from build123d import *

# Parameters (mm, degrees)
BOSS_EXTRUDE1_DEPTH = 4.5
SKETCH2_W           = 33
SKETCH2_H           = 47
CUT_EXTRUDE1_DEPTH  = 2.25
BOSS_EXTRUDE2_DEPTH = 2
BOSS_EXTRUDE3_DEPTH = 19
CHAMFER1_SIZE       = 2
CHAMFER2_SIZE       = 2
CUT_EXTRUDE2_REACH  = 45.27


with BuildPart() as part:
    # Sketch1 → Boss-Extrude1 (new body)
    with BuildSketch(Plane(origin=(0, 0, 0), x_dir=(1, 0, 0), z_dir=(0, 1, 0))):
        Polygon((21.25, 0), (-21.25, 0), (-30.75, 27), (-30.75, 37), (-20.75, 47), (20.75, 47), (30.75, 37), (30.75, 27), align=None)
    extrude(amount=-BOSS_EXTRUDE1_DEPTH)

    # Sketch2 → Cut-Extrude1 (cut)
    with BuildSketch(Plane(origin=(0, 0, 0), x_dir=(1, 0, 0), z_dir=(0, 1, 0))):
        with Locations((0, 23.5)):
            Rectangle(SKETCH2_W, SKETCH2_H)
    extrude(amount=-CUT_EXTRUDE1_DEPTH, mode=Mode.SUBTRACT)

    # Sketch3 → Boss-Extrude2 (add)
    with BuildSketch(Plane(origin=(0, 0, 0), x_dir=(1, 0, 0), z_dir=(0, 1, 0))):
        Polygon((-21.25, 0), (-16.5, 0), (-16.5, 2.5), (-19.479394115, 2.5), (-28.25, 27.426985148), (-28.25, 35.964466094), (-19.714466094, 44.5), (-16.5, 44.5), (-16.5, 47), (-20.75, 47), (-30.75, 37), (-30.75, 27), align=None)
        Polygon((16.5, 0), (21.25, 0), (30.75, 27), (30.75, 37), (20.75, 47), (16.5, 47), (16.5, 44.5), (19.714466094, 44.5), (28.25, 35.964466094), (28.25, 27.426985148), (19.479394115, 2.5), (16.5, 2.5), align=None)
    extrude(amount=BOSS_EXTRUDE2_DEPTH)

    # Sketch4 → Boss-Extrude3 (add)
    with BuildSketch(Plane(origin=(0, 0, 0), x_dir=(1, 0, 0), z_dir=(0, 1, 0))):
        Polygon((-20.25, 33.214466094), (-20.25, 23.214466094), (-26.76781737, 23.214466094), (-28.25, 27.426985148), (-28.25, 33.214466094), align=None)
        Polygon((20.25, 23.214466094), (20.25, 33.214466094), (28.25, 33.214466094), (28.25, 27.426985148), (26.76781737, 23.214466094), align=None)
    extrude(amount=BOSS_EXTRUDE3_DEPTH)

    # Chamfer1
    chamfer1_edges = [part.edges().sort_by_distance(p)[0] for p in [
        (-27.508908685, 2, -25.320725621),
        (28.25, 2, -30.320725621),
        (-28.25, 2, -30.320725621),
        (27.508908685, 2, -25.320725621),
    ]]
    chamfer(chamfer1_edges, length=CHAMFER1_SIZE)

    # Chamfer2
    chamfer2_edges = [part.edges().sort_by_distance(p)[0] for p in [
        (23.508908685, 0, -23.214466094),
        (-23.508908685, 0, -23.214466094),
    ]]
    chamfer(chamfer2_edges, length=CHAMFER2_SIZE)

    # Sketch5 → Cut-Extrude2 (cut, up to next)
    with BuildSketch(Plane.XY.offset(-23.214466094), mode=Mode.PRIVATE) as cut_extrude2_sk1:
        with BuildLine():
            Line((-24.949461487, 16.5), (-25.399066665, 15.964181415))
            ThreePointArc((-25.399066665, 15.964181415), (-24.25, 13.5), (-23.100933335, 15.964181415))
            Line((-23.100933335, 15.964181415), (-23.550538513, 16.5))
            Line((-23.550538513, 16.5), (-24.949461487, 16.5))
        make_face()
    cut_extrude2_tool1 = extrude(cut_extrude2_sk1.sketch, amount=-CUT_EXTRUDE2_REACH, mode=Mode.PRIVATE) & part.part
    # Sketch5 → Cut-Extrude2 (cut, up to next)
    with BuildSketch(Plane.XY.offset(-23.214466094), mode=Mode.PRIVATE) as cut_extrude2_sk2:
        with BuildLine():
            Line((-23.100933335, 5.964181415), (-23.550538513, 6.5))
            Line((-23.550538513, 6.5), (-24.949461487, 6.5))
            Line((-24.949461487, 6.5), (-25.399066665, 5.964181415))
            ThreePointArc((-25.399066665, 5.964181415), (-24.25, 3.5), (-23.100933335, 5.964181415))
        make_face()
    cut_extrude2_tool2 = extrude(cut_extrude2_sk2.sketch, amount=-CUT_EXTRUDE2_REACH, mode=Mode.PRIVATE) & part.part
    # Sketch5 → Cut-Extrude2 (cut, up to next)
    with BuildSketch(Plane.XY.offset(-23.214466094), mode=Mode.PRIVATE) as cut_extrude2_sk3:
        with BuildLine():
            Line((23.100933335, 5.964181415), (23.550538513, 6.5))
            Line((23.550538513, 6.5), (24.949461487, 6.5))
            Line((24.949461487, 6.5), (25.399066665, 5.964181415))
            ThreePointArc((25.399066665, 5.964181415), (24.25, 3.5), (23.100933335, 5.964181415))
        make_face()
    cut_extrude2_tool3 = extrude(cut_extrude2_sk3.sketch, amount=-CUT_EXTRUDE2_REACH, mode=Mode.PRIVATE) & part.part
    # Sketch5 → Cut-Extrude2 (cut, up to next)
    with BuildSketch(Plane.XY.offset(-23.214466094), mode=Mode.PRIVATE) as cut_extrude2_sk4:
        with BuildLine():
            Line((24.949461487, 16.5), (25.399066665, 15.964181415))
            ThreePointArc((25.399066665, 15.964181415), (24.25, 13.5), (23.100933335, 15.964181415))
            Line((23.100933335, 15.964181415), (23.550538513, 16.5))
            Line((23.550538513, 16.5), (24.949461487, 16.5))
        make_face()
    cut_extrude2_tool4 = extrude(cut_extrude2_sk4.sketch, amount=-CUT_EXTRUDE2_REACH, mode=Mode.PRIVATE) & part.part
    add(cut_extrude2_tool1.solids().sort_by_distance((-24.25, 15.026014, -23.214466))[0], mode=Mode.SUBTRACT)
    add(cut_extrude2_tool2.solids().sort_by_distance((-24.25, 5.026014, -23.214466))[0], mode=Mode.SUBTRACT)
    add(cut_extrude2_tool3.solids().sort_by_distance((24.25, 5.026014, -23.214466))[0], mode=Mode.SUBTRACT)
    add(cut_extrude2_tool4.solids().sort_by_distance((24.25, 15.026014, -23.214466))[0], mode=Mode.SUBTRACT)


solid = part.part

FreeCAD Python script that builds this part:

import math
import FreeCAD as App
import Part
import Sketcher

V = App.Vector
Q = App.Units.Quantity


def edges_at(feature, points):
    """Names of the edges that pass closest to the given points."""
    edges = feature.Shape.Edges
    near = lambda p: min(range(len(edges)), key=lambda i: edges[i].distToShape(Part.Vertex(*p))[0])
    return sorted({f"Edge{near(p) + 1}" for p in points})

doc = App.newDocument("Part")
body = doc.addObject("PartDesign::Body", "Body")

sketch1 = body.newObject("Sketcher::SketchObject", "Sketch")
sketch1.AttachmentSupport = (doc.getObject("XZ_Plane"), [""])
sketch1.MapMode = "FlatFace"
sketch1.addGeometry([
    Part.LineSegment(V(-21, 0, 0), V(21, 0, 0)),
    Part.LineSegment(V(21, 0, 0), V(31, -27, 0)),
    Part.LineSegment(V(31, -27, 0), V(31, -37, 0)),
    Part.LineSegment(V(31, -37, 0), V(21, -47, 0)),
    Part.LineSegment(V(21, -47, 0), V(-21, -47, 0)),
    Part.LineSegment(V(-21, -47, 0), V(-31, -37, 0)),
    Part.LineSegment(V(-31, -37, 0), V(-31, -27, 0)),
    Part.LineSegment(V(-31, -27, 0), V(-21, 0, 0)),
], False)
sketch1.addConstraint([
    Sketcher.Constraint("Coincident", 0, 2, 1, 1),
    Sketcher.Constraint("Coincident", 1, 2, 2, 1),
    Sketcher.Constraint("Coincident", 2, 2, 3, 1),
    Sketcher.Constraint("Coincident", 3, 2, 4, 1),
    Sketcher.Constraint("Coincident", 4, 2, 5, 1),
    Sketcher.Constraint("Coincident", 5, 2, 6, 1),
    Sketcher.Constraint("Coincident", 6, 2, 7, 1),
    Sketcher.Constraint("Coincident", 7, 2, 0, 1),
    Sketcher.Constraint("Horizontal", 0),
    Sketcher.Constraint("Vertical", 2),
    Sketcher.Constraint("Horizontal", 4),
    Sketcher.Constraint("Vertical", 6),
    Sketcher.Constraint("Symmetric", 0, 2, 7, 2, -1, 1),
    Sketcher.Constraint("Symmetric", 2, 2, 5, 2, -2),
    Sketcher.Constraint("Perpendicular", 3, 5),
    Sketcher.Constraint("Horizontal", 1, 2, 6, 2),
    Sketcher.Constraint("Equal", 3, 5),
    Sketcher.Constraint("DistanceY", 2, 2, 2, 1, 10.0),
    Sketcher.Constraint("DistanceX", 0, 1, 0, 2, 42.5),
    Sketcher.Constraint("DistanceX", 4, 2, 4, 1, 41.5),
    Sketcher.Constraint("DistanceY", 1, 2, -1, 1, 27.0),
    Sketcher.Constraint("DistanceY", 3, 2, -1, 1, 47.0),
])
pad1 = body.newObject("PartDesign::Pad", "Pad")
pad1.Profile = sketch1
pad1.Length = 4.5

sketch2 = body.newObject("Sketcher::SketchObject", "Sketch001")
sketch2.AttachmentSupport = (doc.getObject("XZ_Plane"), [""])
sketch2.MapMode = "FlatFace"
sketch2.addGeometry([
    Part.LineSegment(V(-16, -47, 0), V(-16, 0, 0)),
    Part.LineSegment(V(-16, 0, 0), V(16, 0, 0)),
    Part.LineSegment(V(16, 0, 0), V(16, -47, 0)),
    Part.LineSegment(V(16, -47, 0), V(-16, -47, 0)),
], False)
sketch2.addConstraint([
    Sketcher.Constraint("Coincident", 0, 2, 1, 1),
    Sketcher.Constraint("Coincident", 1, 2, 2, 1),
    Sketcher.Constraint("Coincident", 2, 2, 3, 1),
    Sketcher.Constraint("Coincident", 3, 2, 0, 1),
    Sketcher.Constraint("Vertical", 0),
    Sketcher.Constraint("Horizontal", 1),
    Sketcher.Constraint("Vertical", 2),
    Sketcher.Constraint("Horizontal", 3),
    Sketcher.Constraint("Symmetric", 0, 2, 1, 2, -1, 1),
    Sketcher.Constraint("DistanceX", 1, 1, 1, 2, 33.0),
    Sketcher.Constraint("DistanceY", 0, 1, 0, 2, 47.0),
])
pocket1 = body.newObject("PartDesign::Pocket", "Pocket")
pocket1.Profile = sketch2
pocket1.Length = 2.25
pocket1.Reversed = True

sketch3 = body.newObject("Sketcher::SketchObject", "Sketch002")
sketch3.AttachmentSupport = (doc.getObject("XZ_Plane"), [""])
sketch3.MapMode = "FlatFace"
sketch3.addGeometry([
    Part.LineSegment(V(-21.2, 0, 0), V(-16.5, 0, 0)),
    Part.LineSegment(V(-16.5, 0, 0), V(-16.5, -2.5, 0)),
    Part.LineSegment(V(-16.5, -2.5, 0), V(-19.5, -2.5, 0)),
    Part.LineSegment(V(-19.5, -2.5, 0), V(-28.2, -27.4, 0)),
    Part.LineSegment(V(-28.2, -27.4, 0), V(-28.2, -36, 0)),
    Part.LineSegment(V(-28.2, -36, 0), V(-19.7, -44.5, 0)),
    Part.LineSegment(V(-19.7, -44.5, 0), V(-16.5, -44.5, 0)),
    Part.LineSegment(V(-16.5, -44.5, 0), V(-16.5, -47, 0)),
    Part.LineSegment(V(-16.5, -47, 0), V(-20.8, -47, 0)),
    Part.LineSegment(V(-20.8, -47, 0), V(-30.8, -37, 0)),
    Part.LineSegment(V(-30.8, -37, 0), V(-30.8, -27, 0)),
    Part.LineSegment(V(-30.8, -27, 0), V(-21.2, 0, 0)),
    Part.LineSegment(V(16.5, 0, 0), V(21.2, 0, 0)),
    Part.LineSegment(V(21.2, 0, 0), V(30.8, -27, 0)),
    Part.LineSegment(V(30.8, -27, 0), V(30.8, -37, 0)),
    Part.LineSegment(V(30.8, -37, 0), V(20.8, -47, 0)),
    Part.LineSegment(V(20.8, -47, 0), V(16.5, -47, 0)),
    Part.LineSegment(V(16.5, -47, 0), V(16.5, -44.5, 0)),
    Part.LineSegment(V(16.5, -44.5, 0), V(19.7, -44.5, 0)),
    Part.LineSegment(V(19.7, -44.5, 0), V(28.2, -36, 0)),
    Part.LineSegment(V(28.2, -36, 0), V(28.2, -27.4, 0)),
    Part.LineSegment(V(28.2, -27.4, 0), V(19.5, -2.5, 0)),
    Part.LineSegment(V(19.5, -2.5, 0), V(16.5, -2.5, 0)),
    Part.LineSegment(V(16.5, -2.5, 0), V(16.5, 0, 0)),
], False)
sketch3.addConstraint([
    Sketcher.Constraint("Coincident", 0, 2, 1, 1),
    Sketcher.Constraint("Coincident", 1, 2, 2, 1),
    Sketcher.Constraint("Coincident", 2, 2, 3, 1),
    Sketcher.Constraint("Coincident", 3, 2, 4, 1),
    Sketcher.Constraint("Coincident", 4, 2, 5, 1),
    Sketcher.Constraint("Coincident", 5, 2, 6, 1),
    Sketcher.Constraint("Coincident", 6, 2, 7, 1),
    Sketcher.Constraint("Coincident", 7, 2, 8, 1),
    Sketcher.Constraint("Coincident", 8, 2, 9, 1),
    Sketcher.Constraint("Coincident", 9, 2, 10, 1),
    Sketcher.Constraint("Coincident", 10, 2, 11, 1),
    Sketcher.Constraint("Coincident", 11, 2, 0, 1),
    Sketcher.Constraint("Coincident", 12, 2, 13, 1),
    Sketcher.Constraint("Coincident", 13, 2, 14, 1),
    Sketcher.Constraint("Coincident", 14, 2, 15, 1),
    Sketcher.Constraint("Coincident", 15, 2, 16, 1),
    Sketcher.Constraint("Coincident", 16, 2, 17, 1),
    Sketcher.Constraint("Coincident", 17, 2, 18, 1),
    Sketcher.Constraint("Coincident", 18, 2, 19, 1),
    Sketcher.Constraint("Coincident", 19, 2, 20, 1),
    Sketcher.Constraint("Coincident", 20, 2, 21, 1),
    Sketcher.Constraint("Coincident", 21, 2, 22, 1),
    Sketcher.Constraint("Coincident", 22, 2, 23, 1),
    Sketcher.Constraint("Coincident", 23, 2, 12, 1),
    Sketcher.Constraint("Horizontal", 0),
    Sketcher.Constraint("Vertical", 1),
    Sketcher.Constraint("Horizontal", 2),
    Sketcher.Constraint("Vertical", 4),
    Sketcher.Constraint("Horizontal", 6),
    Sketcher.Constraint("Vertical", 7),
    Sketcher.Constraint("Horizontal", 8),
    Sketcher.Constraint("Vertical", 10),
    Sketcher.Constraint("Horizontal", 12),
    Sketcher.Constraint("Vertical", 14),
    Sketcher.Constraint("Horizontal", 16),
    Sketcher.Constraint("Vertical", 17),
    Sketcher.Constraint("Horizontal", 18),
    Sketcher.Constraint("Vertical", 20),
    Sketcher.Constraint("Horizontal", 22),
    Sketcher.Constraint("Vertical", 23),
    Sketcher.Constraint("Symmetric", 11, 2, 12, 2, -1, 1),
    Sketcher.Constraint("Symmetric", 10, 2, 13, 2, -2),
    Sketcher.Constraint("Symmetric", 8, 2, 15, 2, -2),
    Sketcher.Constraint("Symmetric", 6, 2, 17, 2, -2),
    Sketcher.Constraint("Symmetric", 4, 2, 19, 2, -2),
    Sketcher.Constraint("Symmetric", 2, 2, 21, 2, -2),
    Sketcher.Constraint("Symmetric", 0, 2, 23, 2, -2),
    Sketcher.Constraint("Parallel", 5, 9),
    Sketcher.Constraint("Parallel", 3, 11),
    Sketcher.Constraint("Perpendicular", 9, 15),
    Sketcher.Constraint("Parallel", 15, 19),
    Sketcher.Constraint("Parallel", 13, 21),
    Sketcher.Constraint("Horizontal", 9, 2, 14, 2),
    Sketcher.Constraint("Vertical", 1, 2, 6, 2),
    Sketcher.Constraint("Equal", 1, 7),
    Sketcher.Constraint("DistanceY", 10, 1, 10, 2, 10.0),
    Sketcher.Constraint("DistanceY", 1, 2, 1, 1, 2.5),
    Sketcher.Constraint("DistanceY", 7, 2, -1, 1, 47.0),
    Sketcher.Constraint("DistanceY", 9, 2, -1, 1, 37.0),
    Sketcher.Constraint("DistanceX", 3, 2, 11, 2, 7.0),
    Sketcher.Constraint("DistanceX", 7, 2, 16, 2, 33.0),
    Sketcher.Constraint("DistanceX", 0, 1, 0, 2, 4.75),
    Sketcher.Constraint("DistanceX", 8, 2, 8, 1, 4.25),
    Sketcher.Constraint("DistanceY", 4, 2, 4, 1, 8.537481),
    Sketcher.Constraint("DistanceX", 2, 2, 2, 1, 2.979394),
])
pad2 = body.newObject("PartDesign::Pad", "Pad001")
pad2.Profile = sketch3
pad2.Length = 2
pad2.Reversed = True

sketch4 = body.newObject("Sketcher::SketchObject", "Sketch003")
sketch4.AttachmentSupport = (doc.getObject("XZ_Plane"), [""])
sketch4.MapMode = "FlatFace"
sketch4.addGeometry([
    Part.LineSegment(V(-20.2, -23.2, 0), V(-20.2, -33.2, 0)),
    Part.LineSegment(V(-20.2, -33.2, 0), V(-28.2, -33.2, 0)),
    Part.LineSegment(V(-28.2, -33.2, 0), V(-28.2, -27.4, 0)),
    Part.LineSegment(V(-28.2, -27.4, 0), V(-26.8, -23.2, 0)),
    Part.LineSegment(V(-26.8, -23.2, 0), V(-20.2, -23.2, 0)),
    Part.LineSegment(V(20.2, -33.2, 0), V(20.2, -23.2, 0)),
    Part.LineSegment(V(20.2, -23.2, 0), V(26.8, -23.2, 0)),
    Part.LineSegment(V(26.8, -23.2, 0), V(28.2, -27.4, 0)),
    Part.LineSegment(V(28.2, -27.4, 0), V(28.2, -33.2, 0)),
    Part.LineSegment(V(28.2, -33.2, 0), V(20.2, -33.2, 0)),
], False)
sketch4.addConstraint([
    Sketcher.Constraint("Coincident", 0, 2, 1, 1),
    Sketcher.Constraint("Coincident", 1, 2, 2, 1),
    Sketcher.Constraint("Coincident", 2, 2, 3, 1),
    Sketcher.Constraint("Coincident", 3, 2, 4, 1),
    Sketcher.Constraint("Coincident", 4, 2, 0, 1),
    Sketcher.Constraint("Coincident", 5, 2, 6, 1),
    Sketcher.Constraint("Coincident", 6, 2, 7, 1),
    Sketcher.Constraint("Coincident", 7, 2, 8, 1),
    Sketcher.Constraint("Coincident", 8, 2, 9, 1),
    Sketcher.Constraint("Coincident", 9, 2, 5, 1),
    Sketcher.Constraint("Vertical", 0),
    Sketcher.Constraint("Horizontal", 1),
    Sketcher.Constraint("Vertical", 2),
    Sketcher.Constraint("Horizontal", 4),
    Sketcher.Constraint("Vertical", 5),
    Sketcher.Constraint("Horizontal", 6),
    Sketcher.Constraint("Vertical", 8),
    Sketcher.Constraint("Horizontal", 9),
    Sketcher.Constraint("Symmetric", 4, 2, 5, 2, -2),
    Sketcher.Constraint("Symmetric", 2, 2, 7, 2, -2),
    Sketcher.Constraint("Horizontal", 1, 2, 8, 2),
    Sketcher.Constraint("Equal", 4, 6),
    Sketcher.Constraint("DistanceX", 1, 2, 1, 1, 8.0),
    Sketcher.Constraint("DistanceY", 0, 2, 0, 1, 10.0),
    Sketcher.Constraint("DistanceX", 4, 2, 5, 2, 40.5),
    Sketcher.Constraint("DistanceY", 2, 1, 2, 2, 5.787481),
    Sketcher.Constraint("DistanceX", 4, 1, 4, 2, 6.517817),
    Sketcher.Constraint("DistanceY", 0, 2, -1, 1, 33.214466),
])
pad3 = body.newObject("PartDesign::Pad", "Pad002")
pad3.Profile = sketch4
pad3.Length = 19
pad3.Reversed = True
doc.recompute()

chamfer = body.newObject("PartDesign::Chamfer", "Chamfer")
chamfer.Base = (pad3, edges_at(pad3, [
    (-27.509, 2, -25.321),
    (28.25, 2, -30.321),
    (-28.25, 2, -30.321),
    (27.509, 2, -25.321),
]))
chamfer.Size = 2
doc.recompute()

chamfer2 = body.newObject("PartDesign::Chamfer", "Chamfer001")
chamfer2.Base = (chamfer, edges_at(chamfer, [(23.509, 0, -23.214), (-23.509, 0, -23.214)]))
chamfer2.Size = 2

sketch5 = body.newObject("Sketcher::SketchObject", "Sketch004")
sketch5.AttachmentSupport = (doc.getObject("XY_Plane"), [""])
sketch5.MapMode = "FlatFace"
sketch5.AttachmentOffset = App.Placement(V(0, 0, -23.214466), App.Rotation())
sketch5.addGeometry([
    Part.LineSegment(V(-24.9, 16.5, 0), V(-25.4, 16, 0)),
    Part.ArcOfCircle(Part.Circle(V(-24.2, 15, 0), V(0, 0, 1), 1.5), math.radians(140), math.radians(400)),
    Part.LineSegment(V(-23.1, 16, 0), V(-23.6, 16.5, 0)),
    Part.LineSegment(V(-23.6, 16.5, 0), V(-24.9, 16.5, 0)),
], False)
sketch5.addConstraint([
    Sketcher.Constraint("Tangent", 0, 2, 1, 1),
    Sketcher.Constraint("Tangent", 1, 2, 2, 1),
    Sketcher.Constraint("Coincident", 2, 2, 3, 1),
    Sketcher.Constraint("Coincident", 3, 2, 0, 1),
    Sketcher.Constraint("Horizontal", 3),
    Sketcher.Constraint("Horizontal", 0, 2, 1, 2),
    Sketcher.Constraint("Radius", 1, 1.5),
    Sketcher.Constraint("Angle", 0, Q("-130 deg")),
    Sketcher.Constraint("DistanceY", -1, 1, 1, 3, 15.0),
    Sketcher.Constraint("DistanceY", -1, 1, 2, 2, 16.5),
    Sketcher.Constraint("DistanceX", 1, 3, -1, 1, 24.25),
])
pocket2 = body.newObject("PartDesign::Pocket", "Pocket001")
pocket2.Profile = sketch5
pocket2.Type = "UpToFirst"

sketch6 = body.newObject("Sketcher::SketchObject", "Sketch005")
sketch6.AttachmentSupport = (doc.getObject("XY_Plane"), [""])
sketch6.MapMode = "FlatFace"
sketch6.AttachmentOffset = App.Placement(V(0, 0, -23.214466), App.Rotation())
sketch6.addGeometry([
    Part.LineSegment(V(-23.1, 6, 0), V(-23.6, 6.5, 0)),
    Part.LineSegment(V(-23.6, 6.5, 0), V(-24.9, 6.5, 0)),
    Part.LineSegment(V(-24.9, 6.5, 0), V(-25.4, 6, 0)),
    Part.ArcOfCircle(Part.Circle(V(-24.2, 5, 0), V(0, 0, 1), 1.5), math.radians(140), math.radians(400)),
], False)
sketch6.addConstraint([
    Sketcher.Constraint("Coincident", 0, 2, 1, 1),
    Sketcher.Constraint("Coincident", 1, 2, 2, 1),
    Sketcher.Constraint("Tangent", 2, 2, 3, 1),
    Sketcher.Constraint("Tangent", 3, 2, 0, 1),
    Sketcher.Constraint("Horizontal", 1),
    Sketcher.Constraint("Horizontal", 2, 2, 3, 2),
    Sketcher.Constraint("Radius", 3, 1.5),
    Sketcher.Constraint("Angle", 0, Q("130 deg")),
    Sketcher.Constraint("DistanceY", -1, 1, 3, 3, 5.0),
    Sketcher.Constraint("DistanceY", -1, 1, 0, 2, 6.5),
    Sketcher.Constraint("DistanceX", 3, 3, -1, 1, 24.25),
])
pocket3 = body.newObject("PartDesign::Pocket", "Pocket002")
pocket3.Profile = sketch6
pocket3.Type = "UpToFirst"

sketch7 = body.newObject("Sketcher::SketchObject", "Sketch006")
sketch7.AttachmentSupport = (doc.getObject("XY_Plane"), [""])
sketch7.MapMode = "FlatFace"
sketch7.AttachmentOffset = App.Placement(V(0, 0, -23.214466), App.Rotation())
sketch7.addGeometry([
    Part.LineSegment(V(23.6, 6.5, 0), V(23.1, 6, 0)),
    Part.ArcOfCircle(Part.Circle(V(24.2, 5, 0), V(0, 0, 1), 1.5), math.radians(140), math.radians(400)),
    Part.LineSegment(V(25.4, 6, 0), V(24.9, 6.5, 0)),
    Part.LineSegment(V(24.9, 6.5, 0), V(23.6, 6.5, 0)),
], False)
sketch7.addConstraint([
    Sketcher.Constraint("Tangent", 0, 2, 1, 1),
    Sketcher.Constraint("Tangent", 1, 2, 2, 1),
    Sketcher.Constraint("Coincident", 2, 2, 3, 1),
    Sketcher.Constraint("Coincident", 3, 2, 0, 1),
    Sketcher.Constraint("Horizontal", 3),
    Sketcher.Constraint("Horizontal", 0, 2, 1, 2),
    Sketcher.Constraint("Radius", 1, 1.5),
    Sketcher.Constraint("Angle", 0, Q("-130 deg")),
    Sketcher.Constraint("DistanceY", -1, 1, 1, 3, 5.0),
    Sketcher.Constraint("DistanceY", -1, 1, 2, 2, 6.5),
    Sketcher.Constraint("DistanceX", -1, 1, 1, 3, 24.25),
])
pocket4 = body.newObject("PartDesign::Pocket", "Pocket003")
pocket4.Profile = sketch7
pocket4.Type = "UpToFirst"

sketch8 = body.newObject("Sketcher::SketchObject", "Sketch007")
sketch8.AttachmentSupport = (doc.getObject("XY_Plane"), [""])
sketch8.MapMode = "FlatFace"
sketch8.AttachmentOffset = App.Placement(V(0, 0, -23.214466), App.Rotation())
sketch8.addGeometry([
    Part.LineSegment(V(25.4, 16, 0), V(24.9, 16.5, 0)),
    Part.LineSegment(V(24.9, 16.5, 0), V(23.6, 16.5, 0)),
    Part.LineSegment(V(23.6, 16.5, 0), V(23.1, 16, 0)),
    Part.ArcOfCircle(Part.Circle(V(24.2, 15, 0), V(0, 0, 1), 1.5), math.radians(140), math.radians(400)),
], False)
sketch8.addConstraint([
    Sketcher.Constraint("Coincident", 0, 2, 1, 1),
    Sketcher.Constraint("Coincident", 1, 2, 2, 1),
    Sketcher.Constraint("Tangent", 2, 2, 3, 1),
    Sketcher.Constraint("Tangent", 3, 2, 0, 1),
    Sketcher.Constraint("Horizontal", 1),
    Sketcher.Constraint("Horizontal", 2, 2, 3, 2),
    Sketcher.Constraint("Radius", 3, 1.5),
    Sketcher.Constraint("Angle", 0, Q("130 deg")),
    Sketcher.Constraint("DistanceY", -1, 1, 3, 3, 15.0),
    Sketcher.Constraint("DistanceY", -1, 1, 0, 2, 16.5),
    Sketcher.Constraint("DistanceX", -1, 1, 3, 3, 24.25),
])
pocket5 = body.newObject("PartDesign::Pocket", "Pocket004")
pocket5.Profile = sketch8
pocket5.Type = "UpToFirst"

doc.recompute()
